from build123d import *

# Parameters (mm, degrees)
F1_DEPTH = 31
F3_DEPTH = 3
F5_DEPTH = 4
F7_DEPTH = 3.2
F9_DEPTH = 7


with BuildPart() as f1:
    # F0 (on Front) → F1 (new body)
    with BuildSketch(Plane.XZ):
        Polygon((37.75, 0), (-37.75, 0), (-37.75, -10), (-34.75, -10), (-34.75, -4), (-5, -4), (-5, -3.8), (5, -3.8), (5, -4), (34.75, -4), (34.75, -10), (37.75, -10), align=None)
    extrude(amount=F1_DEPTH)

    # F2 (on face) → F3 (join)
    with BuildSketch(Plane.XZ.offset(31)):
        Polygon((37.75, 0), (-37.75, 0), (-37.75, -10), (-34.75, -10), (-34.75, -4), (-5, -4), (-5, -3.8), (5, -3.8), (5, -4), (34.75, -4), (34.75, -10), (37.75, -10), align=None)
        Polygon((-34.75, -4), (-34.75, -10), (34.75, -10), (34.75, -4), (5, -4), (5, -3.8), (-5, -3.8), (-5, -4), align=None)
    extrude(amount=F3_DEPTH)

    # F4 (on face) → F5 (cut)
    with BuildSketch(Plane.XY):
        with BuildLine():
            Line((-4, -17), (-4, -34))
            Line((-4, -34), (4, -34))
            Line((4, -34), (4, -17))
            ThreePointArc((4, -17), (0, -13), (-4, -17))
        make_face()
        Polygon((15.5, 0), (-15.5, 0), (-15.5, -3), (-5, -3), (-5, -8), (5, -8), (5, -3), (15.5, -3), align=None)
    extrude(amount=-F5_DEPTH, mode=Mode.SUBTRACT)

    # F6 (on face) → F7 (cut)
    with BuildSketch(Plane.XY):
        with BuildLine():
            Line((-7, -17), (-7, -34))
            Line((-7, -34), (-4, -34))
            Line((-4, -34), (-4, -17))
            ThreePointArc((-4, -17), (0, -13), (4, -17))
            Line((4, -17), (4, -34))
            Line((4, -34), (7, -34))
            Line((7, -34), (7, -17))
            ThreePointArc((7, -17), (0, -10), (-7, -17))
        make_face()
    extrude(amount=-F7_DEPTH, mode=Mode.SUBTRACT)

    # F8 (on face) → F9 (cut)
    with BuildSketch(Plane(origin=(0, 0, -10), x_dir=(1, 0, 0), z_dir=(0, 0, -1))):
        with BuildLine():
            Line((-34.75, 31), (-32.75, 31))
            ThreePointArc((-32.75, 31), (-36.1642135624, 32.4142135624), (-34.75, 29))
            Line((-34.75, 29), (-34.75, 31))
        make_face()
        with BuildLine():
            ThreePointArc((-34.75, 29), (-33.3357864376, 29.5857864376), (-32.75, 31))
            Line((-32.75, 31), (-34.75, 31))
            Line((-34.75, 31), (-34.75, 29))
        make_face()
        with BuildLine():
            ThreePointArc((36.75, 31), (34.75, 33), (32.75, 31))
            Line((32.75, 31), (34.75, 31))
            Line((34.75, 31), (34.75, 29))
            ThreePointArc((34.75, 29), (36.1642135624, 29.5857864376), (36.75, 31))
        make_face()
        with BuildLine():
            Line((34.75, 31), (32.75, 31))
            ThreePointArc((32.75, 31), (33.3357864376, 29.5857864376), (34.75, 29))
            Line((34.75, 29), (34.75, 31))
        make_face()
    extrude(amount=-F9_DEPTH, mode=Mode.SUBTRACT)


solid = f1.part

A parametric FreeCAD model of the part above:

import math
import FreeCAD as App
import Part
import Sketcher
from FreeCAD import Vector

doc = App.newDocument("Part")
params = doc.addObject("Spreadsheet::Sheet", "Params")
for row, (alias, value) in enumerate([
    ("sketch1_width", "3 mm"),
    ("sketch1_width2", "10 mm"),
    ("sketch1_height", "6 mm"),
    ("sketch1_width3", "75.5 mm"),
    ("sketch1_height2", "0.2 mm"),
    ("pad1_length", "31 mm"),
    ("sketch2_height", "10 mm"),
    ("sketch2_width", "75.5 mm"),
    ("pad2_length", "3 mm"),
    ("sketch3_radius", "4 mm"),
    ("sketch3_width", "31 mm"),
    ("sketch3_width2", "10 mm"),
    ("sketch3_height", "17 mm"),
    ("sketch3_height2", "3 mm"),
    ("pocket1_length", "4 mm"),
    ("sketch4_radius", "4 mm"),
    ("sketch4_radius2", "7 mm"),
    ("sketch4_height", "17 mm"),
    ("pocket2_length", "3.2 mm"),
    ("sketch5_radius", "2 mm"),
    ("pocket3_length", "7 mm"),
], start=1):
    params.set(f"A{row}", alias)
    params.set(f"B{row}", "=" + value)
    params.setAlias(f"B{row}", alias)

body = doc.addObject("PartDesign::Body", "Body")

# Sketch on XZ plane
sketch1 = body.newObject("Sketcher::SketchObject", "Sketch")
sketch1.AttachmentSupport = (doc.getObject("XZ_Plane"), [""])
sketch1.MapMode = "FlatFace"
sketch1.addGeometry([
    Part.LineSegment(Vector(37.75, 0, 0), Vector(-37.75, 0, 0)),  # 0
    Part.LineSegment(Vector(-37.75, 0, 0), Vector(-37.75, -10, 0)),  # 1
    Part.LineSegment(Vector(-37.75, -10, 0), Vector(-34.75, -10, 0)),  # 2
    Part.LineSegment(Vector(-34.75, -10, 0), Vector(-34.75, -4, 0)),  # 3
    Part.LineSegment(Vector(-34.75, -4, 0), Vector(-5, -4, 0)),  # 4
    Part.LineSegment(Vector(-5, -4, 0), Vector(-5, -3.8, 0)),  # 5
    Part.LineSegment(Vector(-5, -3.8, 0), Vector(5, -3.8, 0)),  # 6
    Part.LineSegment(Vector(5, -3.8, 0), Vector(5, -4, 0)),  # 7
    Part.LineSegment(Vector(5, -4, 0), Vector(34.75, -4, 0)),  # 8
    Part.LineSegment(Vector(34.75, -4, 0), Vector(34.75, -10, 0)),  # 9
    Part.LineSegment(Vector(34.75, -10, 0), Vector(37.75, -10, 0)),  # 10
    Part.LineSegment(Vector(37.75, -10, 0), Vector(37.75, 0, 0)),  # 11
], False)
sketch1.addConstraint([
    Sketcher.Constraint("Coincident", 0, 2, 1, 1),
    Sketcher.Constraint("Coincident", 1, 2, 2, 1),
    Sketcher.Constraint("Coincident", 2, 2, 3, 1),
    Sketcher.Constraint("Coincident", 3, 2, 4, 1),
    Sketcher.Constraint("Coincident", 4, 2, 5, 1),
    Sketcher.Constraint("Coincident", 5, 2, 6, 1),
    Sketcher.Constraint("Coincident", 6, 2, 7, 1),
    Sketcher.Constraint("Coincident", 7, 2, 8, 1),
    Sketcher.Constraint("Coincident", 8, 2, 9, 1),
    Sketcher.Constraint("Coincident", 9, 2, 10, 1),
    Sketcher.Constraint("Coincident", 10, 2, 11, 1),
    Sketcher.Constraint("Coincident", 11, 2, 0, 1),
    Sketcher.Constraint("Horizontal", 0),
    Sketcher.Constraint("Vertical", 1),
    Sketcher.Constraint("Horizontal", 2),
    Sketcher.Constraint("Vertical", 3),
    Sketcher.Constraint("Horizontal", 4),
    Sketcher.Constraint("Vertical", 5),
    Sketcher.Constraint("Horizontal", 6),
    Sketcher.Constraint("Vertical", 7),
    Sketcher.Constraint("Horizontal", 8),
    Sketcher.Constraint("Vertical", 9),
    Sketcher.Constraint("Horizontal", 10),
    Sketcher.Constraint("Vertical", 11),
    Sketcher.Constraint("Symmetric", 0, 2, 11, 2, -1, 1),
    Sketcher.Constraint("Symmetric", 4, 2, 7, 2, -2),
    Sketcher.Constraint("Symmetric", 2, 2, 9, 2, -2),
    Sketcher.Constraint("Equal", 6, 1),
    Sketcher.Constraint("DistanceX", 2, 1, 2, 2, 3.0),
    Sketcher.Constraint("DistanceX", 6, 1, 6, 2, 10.0),
    Sketcher.Constraint("DistanceY", 3, 1, 3, 2, 6.0),
    Sketcher.Constraint("DistanceX", 0, 2, 0, 1, 75.5),
    Sketcher.Constraint("DistanceY", 5, 1, 5, 2, 0.2),
])
sketch1.setExpression("Constraints[28]", "Params.sketch1_width")
sketch1.setExpression("Constraints[29]", "Params.sketch1_width2")
sketch1.setExpression("Constraints[30]", "Params.sketch1_height")
sketch1.setExpression("Constraints[31]", "Params.sketch1_width3")
sketch1.setExpression("Constraints[32]", "Params.sketch1_height2")
pad1 = body.newObject("PartDesign::Pad", "Pad")
pad1.Profile = sketch1
pad1.setExpression("Length", "Params.pad1_length")

# Sketch on XZ plane
sketch2 = body.newObject("Sketcher::SketchObject", "Sketch001")
sketch2.AttachmentSupport = (doc.getObject("XZ_Plane"), [""])
sketch2.MapMode = "FlatFace"
sketch2.AttachmentOffset = App.Placement(Vector(0, 0, 31), App.Rotation())
sketch2.addGeometry([
    Part.LineSegment(Vector(38, 0, 0), Vector(-38, 0, 0)),
    Part.LineSegment(Vector(-38, 0, 0), Vector(-38, -10, 0)),
    Part.LineSegment(Vector(-38, -10, 0), Vector(38, -10, 0)),
    Part.LineSegment(Vector(38, -10, 0), Vector(38, 0, 0)),
], False)
sketch2.addConstraint([
    Sketcher.Constraint("Coincident", 0, 2, 1, 1),
    Sketcher.Constraint("Coincident", 1, 2, 2, 1),
    Sketcher.Constraint("Coincident", 2, 2, 3, 1),
    Sketcher.Constraint("Coincident", 3, 2, 0, 1),
    Sketcher.Constraint("Horizontal", 0),
    Sketcher.Constraint("Vertical", 1),
    Sketcher.Constraint("Horizontal", 2),
    Sketcher.Constraint("Vertical", 3),
    Sketcher.Constraint("Symmetric", 0, 2, 3, 2, -1, 1),
    Sketcher.Constraint("DistanceY", 1, 2, 1, 1, 10.0),
    Sketcher.Constraint("DistanceX", 0, 2, 0, 1, 75.5),
])
sketch2.setExpression("Constraints[9]", "Params.sketch2_height")
sketch2.setExpression("Constraints[10]", "Params.sketch2_width")
pad2 = body.newObject("PartDesign::Pad", "Pad001")
pad2.Profile = sketch2
pad2.setExpression("Length", "Params.pad2_length")

# Sketch on XY plane
sketch3 = body.newObject("Sketcher::SketchObject", "Sketch002")
sketch3.AttachmentSupport = (doc.getObject("XY_Plane"), [""])
sketch3.MapMode = "FlatFace"
sketch3.addGeometry([
    Part.LineSegment(Vector(-4, -17, 0), Vector(-4, -34, 0)),  # 0
    Part.LineSegment(Vector(-4, -34, 0), Vector(4, -34, 0)),  # 1
    Part.LineSegment(Vector(4, -34, 0), Vector(4, -17, 0)),  # 2
    Part.ArcOfCircle(Part.Circle(Vector(0, -17, 0), Vector(0, 0, 1), 4), math.radians(0), math.radians(180)),  # 3
    Part.LineSegment(Vector(15.5, 0, 0), Vector(-15.5, 0, 0)),  # 4
    Part.LineSegment(Vector(-15.5, 0, 0), Vector(-15.5, -3, 0)),  # 5
    Part.LineSegment(Vector(-15.5, -3, 0), Vector(-5, -3, 0)),  # 6
    Part.LineSegment(Vector(-5, -3, 0), Vector(-5, -8, 0)),  # 7
    Part.LineSegment(Vector(-5, -8, 0), Vector(5, -8, 0)),  # 8
    Part.LineSegment(Vector(5, -8, 0), Vector(5, -3, 0)),  # 9
    Part.LineSegment(Vector(5, -3, 0), Vector(15.5, -3, 0)),  # 10
    Part.LineSegment(Vector(15.5, -3, 0), Vector(15.5, 0, 0)),  # 11
], False)
sketch3.addConstraint([
    Sketcher.Constraint("Coincident", 0, 2, 1, 1),
    Sketcher.Constraint("Coincident", 1, 2, 2, 1),
    Sketcher.Constraint("Tangent", 2, 2, 3, 1),
    Sketcher.Constraint("Tangent", 3, 2, 0, 1),
    Sketcher.Constraint("Coincident", 4, 2, 5, 1),
    Sketcher.Constraint("Coincident", 5, 2, 6, 1),
    Sketcher.Constraint("Coincident", 6, 2, 7, 1),
    Sketcher.Constraint("Coincident", 7, 2, 8, 1),
    Sketcher.Constraint("Coincident", 8, 2, 9, 1),
    Sketcher.Constraint("Coincident", 9, 2, 10, 1),
    Sketcher.Constraint("Coincident", 10, 2, 11, 1),
    Sketcher.Constraint("Coincident", 11, 2, 4, 1),
    Sketcher.Constraint("Vertical", 0),
    Sketcher.Constraint("Horizontal", 1),
    Sketcher.Constraint("Vertical", 2),
    Sketcher.Constraint("Horizontal", 4),
    Sketcher.Constraint("Vertical", 5),
    Sketcher.Constraint("Horizontal", 6),
    Sketcher.Constraint("Vertical", 7),
    Sketcher.Constraint("Horizontal", 8),
    Sketcher.Constraint("Vertical", 9),
    Sketcher.Constraint("Horizontal", 10),
    Sketcher.Constraint("Vertical", 11),
    Sketcher.Constraint("Symmetric", 4, 2, 11, 2, -1, 1),
    Sketcher.Constraint("Symmetric", 6, 2, 9, 2, -2),
    Sketcher.Constraint("PointOnObject", 3, 3, -2),
    Sketcher.Constraint("Radius", 3, 4.0),
    Sketcher.Constraint("DistanceX", 4, 2, 4, 1, 31.0),
    Sketcher.Constraint("DistanceX", 8, 1, 8, 2, 10.0),
    Sketcher.Constraint("DistanceY", 0, 2, 0, 1, 17.0),
    Sketcher.Constraint("DistanceY", 5, 2, 5, 1, 3.0),
    Sketcher.Constraint("DistanceY", 7, 2, 7, 1, 5.0),
    Sketcher.Constraint("DistanceY", 3, 3, -1, 1, 17.0),
])
sketch3.setExpression("Constraints[26]", "Params.sketch3_radius")
sketch3.setExpression("Constraints[27]", "Params.sketch3_width")
sketch3.setExpression("Constraints[28]", "Params.sketch3_width2")
sketch3.setExpression("Constraints[29]", "Params.sketch3_height")
sketch3.setExpression("Constraints[30]", "Params.sketch3_height2")
pocket1 = body.newObject("PartDesign::Pocket", "Pocket")
pocket1.Profile = sketch3
pocket1.setExpression("Length", "Params.pocket1_length")

# Sketch on XY plane
sketch4 = body.newObject("Sketcher::SketchObject", "Sketch003")
sketch4.AttachmentSupport = (doc.getObject("XY_Plane"), [""])
sketch4.MapMode = "FlatFace"
sketch4.addGeometry([
    Part.LineSegment(Vector(-7, -17, 0), Vector(-7, -34, 0)),  # 0
    Part.LineSegment(Vector(-7, -34, 0), Vector(-4, -34, 0)),  # 1
    Part.LineSegment(Vector(-4, -34, 0), Vector(-4, -17, 0)),  # 2
    Part.ArcOfCircle(Part.Circle(Vector(0, -17, 0), Vector(0, 0, 1), 4), math.radians(0), math.radians(180)),  # 3
    Part.LineSegment(Vector(4, -17, 0), Vector(4, -34, 0)),  # 4
    Part.LineSegment(Vector(4, -34, 0), Vector(7, -34, 0)),  # 5
    Part.LineSegment(Vector(7, -34, 0), Vector(7, -17, 0)),  # 6
    Part.ArcOfCircle(Part.Circle(Vector(0, -17, 0), Vector(0, 0, 1), 7), math.radians(0), math.radians(180)),  # 7
], False)
sketch4.addConstraint([
    Sketcher.Constraint("Coincident", 0, 2, 1, 1),
    Sketcher.Constraint("Coincident", 1, 2, 2, 1),
    Sketcher.Constraint("Tangent", 2, 2, 3, 2),
    Sketcher.Constraint("Tangent", 3, 1, 4, 1),
    Sketcher.Constraint("Coincident", 4, 2, 5, 1),
    Sketcher.Constraint("Coincident", 5, 2, 6, 1),
    Sketcher.Constraint("Tangent", 6, 2, 7, 1),
    Sketcher.Constraint("Tangent", 7, 2, 0, 1),
    Sketcher.Constraint("Vertical", 0),
    Sketcher.Constraint("Horizontal", 1),
    Sketcher.Constraint("Vertical", 2),
    Sketcher.Constraint("Vertical", 4),
    Sketcher.Constraint("Horizontal", 5),
    Sketcher.Constraint("Vertical", 6),
    Sketcher.Constraint("Coincident", 7, 3, 3, 3),
    Sketcher.Constraint("Symmetric", 1, 2, 4, 2, -2),
    Sketcher.Constraint("Radius", 3, 4.0),
    Sketcher.Constraint("Radius", 7, 7.0),
    Sketcher.Constraint("DistanceY", 0, 2, 0, 1, 17.0),
    Sketcher.Constraint("DistanceY", 3, 3, -1, 1, 17.0),
])
sketch4.setExpression("Constraints[16]", "Params.sketch4_radius")
sketch4.setExpression("Constraints[17]", "Params.sketch4_radius2")
sketch4.setExpression("Constraints[18]", "Params.sketch4_height")
pocket2 = body.newObject("PartDesign::Pocket", "Pocket001")
pocket2.Profile = sketch4
pocket2.setExpression("Length", "Params.pocket2_length")

# Sketch on XY plane
sketch5 = body.newObject("Sketcher::SketchObject", "Sketch004")
sketch5.AttachmentSupport = (doc.getObject("XY_Plane"), [""])
sketch5.MapMode = "FlatFace"
sketch5.AttachmentOffset = App.Placement(Vector(0, 0, -10), App.Rotation())
sketch5.addGeometry([
    Part.ArcOfCircle(Part.Circle(Vector(-34.8, -31, 0), Vector(0, 0, 1), 2), math.radians(90), math.radians(360)),  # 0
    Part.ArcOfCircle(Part.Circle(Vector(-34.8, -31, 0), Vector(0, 0, 1), 2), math.radians(0), math.radians(90)),  # 1
    Part.ArcOfCircle(Part.Circle(Vector(34.8, -31, 0), Vector(0, 0, 1), 2), math.radians(180), math.radians(360)),  # 2
    Part.ArcOfCircle(Part.Circle(Vector(34.8, -31, 0), Vector(0, 0, 1), 2), math.radians(90), math.radians(180)),  # 3
    Part.ArcOfCircle(Part.Circle(Vector(34.8, -31, 0), Vector(0, 0, 1), 2), math.radians(0), math.radians(90)),  # 4
], False)
sketch5.addConstraint([
    Sketcher.Constraint("Tangent", 0, 1, 1, 2),
    Sketcher.Constraint("Coincident", 1, 1, 0, 2),
    Sketcher.Constraint("Tangent", 2, 1, 3, 2),
    Sketcher.Constraint("Tangent", 3, 1, 4, 2),
    Sketcher.Constraint("Tangent", 4, 1, 2, 2),
    Sketcher.Constraint("Equal", 1, 2),
    Sketcher.Constraint("Symmetric", 0, 3, 2, 3, -2),
    Sketcher.Constraint("Horizontal", 4, 3, 1, 1),
    Sketcher.Constraint("Horizontal", 1, 1, 2, 1),
    Sketcher.Constraint("Horizontal", 2, 1, 4, 1),
    Sketcher.Constraint("Vertical", 1, 3, 0, 1),
    Sketcher.Constraint("Vertical", 4, 3, 3, 1),
    Sketcher.Constraint("Radius", 0, 2.0),
    Sketcher.Constraint("DistanceY", 0, 3, -1, 1, 31.0),
    Sketcher.Constraint("DistanceX", 0, 3, 2, 3, 69.5),
])
sketch5.setExpression("Constraints[12]", "Params.sketch5_radius")
pocket3 = body.newObject("PartDesign::Pocket", "Pocket002")
pocket3.Profile = sketch5
pocket3.setExpression("Length", "Params.pocket3_length")
pocket3.Reversed = True

doc.recompute()
